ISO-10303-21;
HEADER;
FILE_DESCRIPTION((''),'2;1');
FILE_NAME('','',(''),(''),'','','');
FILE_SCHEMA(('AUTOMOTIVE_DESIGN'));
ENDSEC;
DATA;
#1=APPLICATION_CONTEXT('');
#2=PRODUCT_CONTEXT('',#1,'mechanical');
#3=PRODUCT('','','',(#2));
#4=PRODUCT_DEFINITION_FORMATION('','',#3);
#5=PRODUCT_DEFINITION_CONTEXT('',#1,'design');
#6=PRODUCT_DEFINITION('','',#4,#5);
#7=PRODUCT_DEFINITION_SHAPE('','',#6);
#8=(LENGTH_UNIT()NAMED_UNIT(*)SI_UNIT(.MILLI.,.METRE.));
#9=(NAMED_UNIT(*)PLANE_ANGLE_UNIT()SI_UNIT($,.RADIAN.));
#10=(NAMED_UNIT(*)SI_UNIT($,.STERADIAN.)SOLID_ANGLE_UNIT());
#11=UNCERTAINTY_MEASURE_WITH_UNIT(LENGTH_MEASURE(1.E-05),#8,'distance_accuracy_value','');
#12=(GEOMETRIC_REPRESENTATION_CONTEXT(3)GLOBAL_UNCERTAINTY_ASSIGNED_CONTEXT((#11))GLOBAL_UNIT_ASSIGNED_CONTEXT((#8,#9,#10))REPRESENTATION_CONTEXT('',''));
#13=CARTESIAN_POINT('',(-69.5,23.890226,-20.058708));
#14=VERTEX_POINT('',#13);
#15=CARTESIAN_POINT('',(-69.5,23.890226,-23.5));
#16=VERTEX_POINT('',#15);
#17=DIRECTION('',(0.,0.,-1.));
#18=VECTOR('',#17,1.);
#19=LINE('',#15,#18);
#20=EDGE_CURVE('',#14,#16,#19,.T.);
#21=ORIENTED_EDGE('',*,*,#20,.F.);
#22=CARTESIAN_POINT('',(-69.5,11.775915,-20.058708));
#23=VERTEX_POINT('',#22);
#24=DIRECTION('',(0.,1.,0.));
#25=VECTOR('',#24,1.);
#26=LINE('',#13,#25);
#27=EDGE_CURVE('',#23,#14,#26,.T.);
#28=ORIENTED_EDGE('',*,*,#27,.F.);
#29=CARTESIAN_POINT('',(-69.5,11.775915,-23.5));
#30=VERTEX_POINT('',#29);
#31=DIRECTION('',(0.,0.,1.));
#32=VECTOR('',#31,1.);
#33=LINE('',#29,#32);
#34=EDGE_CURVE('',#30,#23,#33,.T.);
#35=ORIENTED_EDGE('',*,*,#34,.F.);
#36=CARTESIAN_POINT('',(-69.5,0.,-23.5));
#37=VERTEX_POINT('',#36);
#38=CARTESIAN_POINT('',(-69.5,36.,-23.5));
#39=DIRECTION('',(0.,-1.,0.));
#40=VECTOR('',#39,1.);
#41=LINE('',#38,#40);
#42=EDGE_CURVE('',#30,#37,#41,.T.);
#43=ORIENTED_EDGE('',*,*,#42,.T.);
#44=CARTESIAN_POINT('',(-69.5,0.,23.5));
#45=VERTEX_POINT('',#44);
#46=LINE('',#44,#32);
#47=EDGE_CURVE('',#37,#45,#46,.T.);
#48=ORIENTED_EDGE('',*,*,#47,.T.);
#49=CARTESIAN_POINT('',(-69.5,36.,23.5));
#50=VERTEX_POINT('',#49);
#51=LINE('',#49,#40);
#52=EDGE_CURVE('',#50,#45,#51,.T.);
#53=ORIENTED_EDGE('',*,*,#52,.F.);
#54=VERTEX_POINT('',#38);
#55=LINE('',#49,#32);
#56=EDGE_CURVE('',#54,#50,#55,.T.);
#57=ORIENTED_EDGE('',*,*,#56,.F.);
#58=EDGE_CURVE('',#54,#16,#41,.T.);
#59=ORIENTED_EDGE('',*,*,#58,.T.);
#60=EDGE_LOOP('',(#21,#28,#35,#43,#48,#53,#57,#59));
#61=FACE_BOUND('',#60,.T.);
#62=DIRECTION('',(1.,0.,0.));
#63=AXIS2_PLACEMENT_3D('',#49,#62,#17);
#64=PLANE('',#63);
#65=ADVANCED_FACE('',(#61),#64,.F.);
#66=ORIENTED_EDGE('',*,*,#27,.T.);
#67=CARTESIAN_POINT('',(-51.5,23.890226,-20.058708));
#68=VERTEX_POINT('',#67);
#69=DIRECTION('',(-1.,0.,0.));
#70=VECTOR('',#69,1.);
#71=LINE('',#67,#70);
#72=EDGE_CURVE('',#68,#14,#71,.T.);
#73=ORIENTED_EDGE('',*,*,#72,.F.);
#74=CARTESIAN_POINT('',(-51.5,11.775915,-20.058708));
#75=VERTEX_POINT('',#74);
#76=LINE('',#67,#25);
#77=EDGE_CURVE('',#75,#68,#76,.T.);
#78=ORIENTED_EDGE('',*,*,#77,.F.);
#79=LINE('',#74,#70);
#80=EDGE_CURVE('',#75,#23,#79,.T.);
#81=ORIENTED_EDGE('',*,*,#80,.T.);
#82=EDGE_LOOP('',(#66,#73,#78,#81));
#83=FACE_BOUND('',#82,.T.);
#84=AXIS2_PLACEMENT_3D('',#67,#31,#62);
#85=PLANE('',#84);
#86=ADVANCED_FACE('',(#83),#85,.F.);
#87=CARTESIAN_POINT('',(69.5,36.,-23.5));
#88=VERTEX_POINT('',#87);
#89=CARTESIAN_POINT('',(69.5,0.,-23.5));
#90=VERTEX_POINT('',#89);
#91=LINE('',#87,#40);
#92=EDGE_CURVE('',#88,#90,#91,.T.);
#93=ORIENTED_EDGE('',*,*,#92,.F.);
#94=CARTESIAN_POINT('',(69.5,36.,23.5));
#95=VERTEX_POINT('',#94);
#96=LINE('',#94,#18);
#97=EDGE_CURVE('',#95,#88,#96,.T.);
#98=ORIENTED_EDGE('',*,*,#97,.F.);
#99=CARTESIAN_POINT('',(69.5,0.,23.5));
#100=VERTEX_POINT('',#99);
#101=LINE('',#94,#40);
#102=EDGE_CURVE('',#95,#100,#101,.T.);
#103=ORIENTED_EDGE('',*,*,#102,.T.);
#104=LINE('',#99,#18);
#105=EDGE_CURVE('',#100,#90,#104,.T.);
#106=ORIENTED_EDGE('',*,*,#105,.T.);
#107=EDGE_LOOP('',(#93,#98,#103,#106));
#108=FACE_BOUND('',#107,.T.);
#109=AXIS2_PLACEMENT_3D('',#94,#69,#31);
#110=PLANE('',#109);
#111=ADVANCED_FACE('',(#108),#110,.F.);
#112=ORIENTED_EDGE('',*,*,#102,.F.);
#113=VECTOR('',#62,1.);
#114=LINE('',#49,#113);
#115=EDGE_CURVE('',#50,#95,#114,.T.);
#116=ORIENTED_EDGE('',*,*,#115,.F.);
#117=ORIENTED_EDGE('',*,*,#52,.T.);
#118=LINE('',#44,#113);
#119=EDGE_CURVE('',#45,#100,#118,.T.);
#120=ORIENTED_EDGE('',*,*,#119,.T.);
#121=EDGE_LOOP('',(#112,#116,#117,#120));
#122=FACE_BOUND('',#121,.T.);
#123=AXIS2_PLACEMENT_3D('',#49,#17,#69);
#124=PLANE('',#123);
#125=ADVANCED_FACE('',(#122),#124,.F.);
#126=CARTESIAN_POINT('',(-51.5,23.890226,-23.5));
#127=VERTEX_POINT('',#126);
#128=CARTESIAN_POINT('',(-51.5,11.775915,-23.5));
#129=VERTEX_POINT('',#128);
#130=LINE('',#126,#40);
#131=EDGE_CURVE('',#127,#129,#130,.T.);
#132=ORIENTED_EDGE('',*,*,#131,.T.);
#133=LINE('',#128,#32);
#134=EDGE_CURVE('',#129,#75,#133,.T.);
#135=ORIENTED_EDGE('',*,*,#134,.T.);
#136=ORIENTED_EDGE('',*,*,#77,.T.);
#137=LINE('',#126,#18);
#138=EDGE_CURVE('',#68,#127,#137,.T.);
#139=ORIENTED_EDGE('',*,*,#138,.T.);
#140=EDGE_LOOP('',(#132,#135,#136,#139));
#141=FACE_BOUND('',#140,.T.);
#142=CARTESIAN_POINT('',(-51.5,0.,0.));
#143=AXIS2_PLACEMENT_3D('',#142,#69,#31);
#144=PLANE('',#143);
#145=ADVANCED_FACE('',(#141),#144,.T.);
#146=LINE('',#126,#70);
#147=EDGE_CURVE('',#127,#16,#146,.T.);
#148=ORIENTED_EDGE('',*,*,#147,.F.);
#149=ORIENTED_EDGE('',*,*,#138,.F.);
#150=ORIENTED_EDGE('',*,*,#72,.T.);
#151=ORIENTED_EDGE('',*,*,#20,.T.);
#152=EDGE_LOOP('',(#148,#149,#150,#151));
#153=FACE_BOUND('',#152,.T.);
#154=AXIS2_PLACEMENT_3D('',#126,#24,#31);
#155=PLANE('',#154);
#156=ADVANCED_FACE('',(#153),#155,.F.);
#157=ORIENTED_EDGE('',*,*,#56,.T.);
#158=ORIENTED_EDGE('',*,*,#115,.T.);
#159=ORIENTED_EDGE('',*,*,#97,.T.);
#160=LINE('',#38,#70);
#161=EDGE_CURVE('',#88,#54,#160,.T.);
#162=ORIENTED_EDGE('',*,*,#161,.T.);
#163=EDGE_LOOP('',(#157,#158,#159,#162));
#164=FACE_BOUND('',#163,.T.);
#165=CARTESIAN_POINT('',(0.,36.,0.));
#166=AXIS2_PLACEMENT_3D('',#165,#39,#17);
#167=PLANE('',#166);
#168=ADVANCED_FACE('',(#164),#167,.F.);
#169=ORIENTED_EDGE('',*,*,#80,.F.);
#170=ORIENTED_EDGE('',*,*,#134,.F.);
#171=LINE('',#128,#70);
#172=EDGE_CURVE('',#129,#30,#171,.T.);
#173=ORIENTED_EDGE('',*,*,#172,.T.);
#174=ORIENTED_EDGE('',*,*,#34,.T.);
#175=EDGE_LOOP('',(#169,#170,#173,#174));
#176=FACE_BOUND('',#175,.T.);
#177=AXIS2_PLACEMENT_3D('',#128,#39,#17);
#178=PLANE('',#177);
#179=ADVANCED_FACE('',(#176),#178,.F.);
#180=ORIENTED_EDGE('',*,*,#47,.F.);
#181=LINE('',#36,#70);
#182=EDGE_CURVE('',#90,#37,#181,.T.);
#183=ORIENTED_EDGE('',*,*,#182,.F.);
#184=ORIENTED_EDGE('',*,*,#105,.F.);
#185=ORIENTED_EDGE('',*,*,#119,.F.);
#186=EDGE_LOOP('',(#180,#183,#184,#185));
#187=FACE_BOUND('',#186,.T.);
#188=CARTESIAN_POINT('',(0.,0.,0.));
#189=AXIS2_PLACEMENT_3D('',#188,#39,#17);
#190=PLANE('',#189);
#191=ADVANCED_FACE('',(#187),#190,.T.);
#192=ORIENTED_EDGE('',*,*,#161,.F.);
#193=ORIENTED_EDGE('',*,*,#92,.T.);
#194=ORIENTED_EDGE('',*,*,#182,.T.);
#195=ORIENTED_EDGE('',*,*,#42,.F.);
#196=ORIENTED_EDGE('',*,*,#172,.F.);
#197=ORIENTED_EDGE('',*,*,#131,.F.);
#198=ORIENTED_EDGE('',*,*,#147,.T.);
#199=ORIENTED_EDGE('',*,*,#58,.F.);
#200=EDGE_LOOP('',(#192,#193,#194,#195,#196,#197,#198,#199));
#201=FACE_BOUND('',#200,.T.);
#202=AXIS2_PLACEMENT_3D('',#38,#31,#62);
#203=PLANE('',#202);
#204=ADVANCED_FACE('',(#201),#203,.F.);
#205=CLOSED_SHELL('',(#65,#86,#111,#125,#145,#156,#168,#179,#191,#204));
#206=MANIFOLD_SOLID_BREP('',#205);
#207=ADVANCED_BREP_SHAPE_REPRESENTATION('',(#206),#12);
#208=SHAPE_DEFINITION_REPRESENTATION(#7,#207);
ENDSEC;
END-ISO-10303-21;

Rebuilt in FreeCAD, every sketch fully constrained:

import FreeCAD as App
import Part
import Sketcher
from FreeCAD import Vector

doc = App.newDocument("Part")
body = doc.addObject("PartDesign::Body", "Body")

sketch1 = body.newObject("Sketcher::SketchObject", "Sketch")
sketch1.AttachmentSupport = (doc.getObject("XZ_Plane"), [""])
sketch1.MapMode = "FlatFace"
sketch1.addGeometry([
    Part.LineSegment(Vector(-69.5, -23.5, 0), Vector(-69.5, 23.5, 0)),
    Part.LineSegment(Vector(-69.5, 23.5, 0), Vector(69.5, 23.5, 0)),
    Part.LineSegment(Vector(69.5, 23.5, 0), Vector(69.5, -23.5, 0)),
    Part.LineSegment(Vector(69.5, -23.5, 0), Vector(-69.5, -23.5, 0)),
], False)
sketch1.addConstraint([
    Sketcher.Constraint("Coincident", 0, 2, 1, 1),
    Sketcher.Constraint("Coincident", 1, 2, 2, 1),
    Sketcher.Constraint("Coincident", 2, 2, 3, 1),
    Sketcher.Constraint("Coincident", 3, 2, 0, 1),
    Sketcher.Constraint("Vertical", 0),
    Sketcher.Constraint("Horizontal", 1),
    Sketcher.Constraint("Vertical", 2),
    Sketcher.Constraint("Horizontal", 3),
    Sketcher.Constraint("Symmetric", 0, 2, 2, 2, -1, 1),
    Sketcher.Constraint("DistanceX", 1, 1, 1, 2, 139.0),
    Sketcher.Constraint("DistanceY", 0, 1, 0, 2, 47.0),
])
pad1 = body.newObject("PartDesign::Pad", "Pad")
pad1.Profile = sketch1
pad1.Length = 36
pad1.Reversed = True

sketch2 = body.newObject("Sketcher::SketchObject", "Sketch001")
sketch2.AttachmentSupport = (doc.getObject("YZ_Plane"), [""])
sketch2.MapMode = "FlatFace"
sketch2.AttachmentOffset = App.Placement(Vector(0, 0, -69.5), App.Rotation())
sketch2.addGeometry([
    Part.LineSegment(Vector(23.890226, -23.5, 0), Vector(11.775915, -23.5, 0)),
    Part.LineSegment(Vector(11.775915, -23.5, 0), Vector(11.775915, -20.058708, 0)),
    Part.LineSegment(Vector(11.775915, -20.058708, 0), Vector(23.890226, -20.058708, 0)),
    Part.LineSegment(Vector(23.890226, -20.058708, 0), Vector(23.890226, -23.5, 0)),
], False)
sketch2.addConstraint([
    Sketcher.Constraint("Coincident", 0, 2, 1, 1),
    Sketcher.Constraint("Coincident", 1, 2, 2, 1),
    Sketcher.Constraint("Coincident", 2, 2, 3, 1),
    Sketcher.Constraint("Coincident", 3, 2, 0, 1),
    Sketcher.Constraint("Horizontal", 0),
    Sketcher.Constraint("Vertical", 1),
    Sketcher.Constraint("Horizontal", 2),
    Sketcher.Constraint("Vertical", 3),
    Sketcher.Constraint("DistanceY", 0, 2, -1, 1, 23.5),
    Sketcher.Constraint("DistanceX", 0, 2, 0, 1, 12.11431),
    Sketcher.Constraint("DistanceY", 1, 1, 1, 2, 3.441292),
    Sketcher.Constraint("DistanceX", -1, 1, 0, 2, 11.775915),
])
pocket1 = body.newObject("PartDesign::Pocket", "Pocket")
pocket1.Profile = sketch2
pocket1.Length = 18
pocket1.Reversed = True

doc.recompute()
